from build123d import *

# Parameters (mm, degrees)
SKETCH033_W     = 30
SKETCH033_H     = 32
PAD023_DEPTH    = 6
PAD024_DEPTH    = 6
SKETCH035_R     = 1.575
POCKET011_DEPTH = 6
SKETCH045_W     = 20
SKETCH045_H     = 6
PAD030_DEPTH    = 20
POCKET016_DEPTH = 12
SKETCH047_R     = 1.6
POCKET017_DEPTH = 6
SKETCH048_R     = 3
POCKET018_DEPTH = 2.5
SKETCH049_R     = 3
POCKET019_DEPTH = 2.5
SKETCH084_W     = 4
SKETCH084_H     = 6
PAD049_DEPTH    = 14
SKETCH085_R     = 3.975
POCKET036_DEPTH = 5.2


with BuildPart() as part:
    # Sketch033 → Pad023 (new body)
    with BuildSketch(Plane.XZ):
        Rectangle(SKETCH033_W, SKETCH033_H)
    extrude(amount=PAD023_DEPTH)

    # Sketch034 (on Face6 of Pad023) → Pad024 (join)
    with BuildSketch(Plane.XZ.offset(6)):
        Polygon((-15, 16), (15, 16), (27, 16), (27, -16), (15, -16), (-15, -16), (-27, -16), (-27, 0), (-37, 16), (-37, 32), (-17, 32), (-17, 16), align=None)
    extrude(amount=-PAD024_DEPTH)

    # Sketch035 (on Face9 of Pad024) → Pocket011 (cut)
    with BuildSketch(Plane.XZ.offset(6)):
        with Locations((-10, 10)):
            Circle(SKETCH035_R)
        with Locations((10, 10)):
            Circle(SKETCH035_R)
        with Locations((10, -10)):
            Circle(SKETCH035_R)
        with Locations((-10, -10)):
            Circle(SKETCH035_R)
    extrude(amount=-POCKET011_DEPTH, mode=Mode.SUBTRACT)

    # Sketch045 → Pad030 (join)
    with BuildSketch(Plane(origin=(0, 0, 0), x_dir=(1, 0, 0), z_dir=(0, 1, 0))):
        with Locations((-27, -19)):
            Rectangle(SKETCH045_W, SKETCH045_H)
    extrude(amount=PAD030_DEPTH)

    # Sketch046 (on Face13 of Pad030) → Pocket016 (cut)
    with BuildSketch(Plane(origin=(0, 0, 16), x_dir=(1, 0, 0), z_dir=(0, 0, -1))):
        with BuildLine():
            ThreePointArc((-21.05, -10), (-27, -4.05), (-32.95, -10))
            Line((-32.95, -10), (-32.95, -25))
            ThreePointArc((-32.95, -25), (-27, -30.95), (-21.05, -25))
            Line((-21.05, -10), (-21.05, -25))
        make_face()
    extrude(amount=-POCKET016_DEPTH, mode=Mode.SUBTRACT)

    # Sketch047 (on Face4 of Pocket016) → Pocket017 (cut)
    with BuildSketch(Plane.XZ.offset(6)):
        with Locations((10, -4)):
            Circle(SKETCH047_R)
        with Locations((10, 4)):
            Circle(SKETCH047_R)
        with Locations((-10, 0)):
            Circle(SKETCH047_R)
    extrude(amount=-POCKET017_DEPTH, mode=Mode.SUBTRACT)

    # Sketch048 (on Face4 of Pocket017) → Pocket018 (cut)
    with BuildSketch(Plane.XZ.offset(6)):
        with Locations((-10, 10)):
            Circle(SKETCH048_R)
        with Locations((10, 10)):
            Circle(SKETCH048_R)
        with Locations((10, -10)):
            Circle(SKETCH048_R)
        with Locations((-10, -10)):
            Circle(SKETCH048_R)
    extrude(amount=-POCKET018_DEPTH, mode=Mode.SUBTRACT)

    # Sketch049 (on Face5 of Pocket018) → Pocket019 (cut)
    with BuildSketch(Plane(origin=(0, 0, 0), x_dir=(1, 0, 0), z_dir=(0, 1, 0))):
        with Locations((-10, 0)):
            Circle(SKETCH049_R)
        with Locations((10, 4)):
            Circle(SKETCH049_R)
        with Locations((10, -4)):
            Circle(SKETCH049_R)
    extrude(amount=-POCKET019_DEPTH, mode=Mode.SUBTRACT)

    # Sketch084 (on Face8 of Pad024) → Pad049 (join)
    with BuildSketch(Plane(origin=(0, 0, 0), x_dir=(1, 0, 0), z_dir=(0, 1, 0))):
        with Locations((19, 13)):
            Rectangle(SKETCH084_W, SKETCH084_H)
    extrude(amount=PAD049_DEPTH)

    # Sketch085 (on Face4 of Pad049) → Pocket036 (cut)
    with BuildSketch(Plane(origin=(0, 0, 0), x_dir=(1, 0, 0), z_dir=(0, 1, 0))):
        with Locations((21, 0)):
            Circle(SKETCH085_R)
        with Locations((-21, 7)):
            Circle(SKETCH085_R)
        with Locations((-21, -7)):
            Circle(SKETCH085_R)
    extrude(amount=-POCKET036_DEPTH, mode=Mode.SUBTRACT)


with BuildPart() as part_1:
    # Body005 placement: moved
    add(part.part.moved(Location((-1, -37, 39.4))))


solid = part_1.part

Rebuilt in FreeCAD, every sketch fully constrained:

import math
import FreeCAD as App
import Part
import Sketcher
from FreeCAD import Vector
Q = App.Units.Quantity


def add_polygon(sketch, points):
    """Adds a closed chain of lines whose ends are joined by coincident constraints."""
    first, n = sketch.GeometryCount, len(points)
    for a, b in zip(points, points[1:] + points[:1]):
        sketch.addGeometry(Part.LineSegment(App.Vector(*a, 0), App.Vector(*b, 0)), False)
    for i in range(n):
        sketch.addConstraint(Sketcher.Constraint("Coincident", first + i, 2, first + (i + 1) % n, 1))

doc = App.newDocument("Part")
body = doc.addObject("PartDesign::Body", "Body")

# Sketch on XZ plane
sketch1 = doc.addObject("Sketcher::SketchObject", "Sketch")
body.addObject(sketch1)
sketch1.AttachmentSupport = (doc.XZ_Plane, [""])
sketch1.MapMode = "FlatFace"
add_polygon(sketch1, [(-15, 16), (-15, -16), (15, -16), (15, 16)])  # lines 0-3
sketch1.addConstraint(Sketcher.Constraint("Vertical", 0))
sketch1.addConstraint(Sketcher.Constraint("Horizontal", 1))
sketch1.addConstraint(Sketcher.Constraint("Vertical", 2))
sketch1.addConstraint(Sketcher.Constraint("Horizontal", 3))
sketch1.addConstraint(Sketcher.Constraint("Symmetric", 0, 2, 2, 2, -1, 1))
sketch1.addConstraint(Sketcher.Constraint("DistanceX", 1, 1, 1, 2, Q("30 mm")))
sketch1.addConstraint(Sketcher.Constraint("DistanceY", 0, 2, 0, 1, Q("32 mm")))
pad1 = doc.addObject("PartDesign::Pad", "Pad")
body.addObject(pad1)
pad1.Profile = sketch1
pad1.Length = 6

# Sketch on XZ plane
sketch2 = doc.addObject("Sketcher::SketchObject", "Sketch001")
body.addObject(sketch2)
sketch2.AttachmentSupport = (doc.XZ_Plane, [""])
sketch2.MapMode = "FlatFace"
sketch2.AttachmentOffset = App.Placement(Vector(0, 0, 6), App.Rotation())
add_polygon(sketch2, [(27, 16), (-17, 16), (-17, 32), (-37, 32), (-37, 16), (-27, 0), (-27, -16), (27, -16)])  # lines 0-7
sketch2.addConstraint(Sketcher.Constraint("Horizontal", 0))
sketch2.addConstraint(Sketcher.Constraint("Vertical", 1))
sketch2.addConstraint(Sketcher.Constraint("Horizontal", 2))
sketch2.addConstraint(Sketcher.Constraint("Vertical", 3))
sketch2.addConstraint(Sketcher.Constraint("Vertical", 5))
sketch2.addConstraint(Sketcher.Constraint("Horizontal", 6))
sketch2.addConstraint(Sketcher.Constraint("Vertical", 7))
sketch2.addConstraint(Sketcher.Constraint("Symmetric", 5, 2, 7, 2, -1, 1))
sketch2.addConstraint(Sketcher.Constraint("PointOnObject", 4, 2, -1))
sketch2.addConstraint(Sketcher.Constraint("Horizontal", 0, 2, 3, 2))
sketch2.addConstraint(Sketcher.Constraint("Equal", 3, 5))
sketch2.addConstraint(Sketcher.Constraint("DistanceX", 0, 2, 0, 1, Q("44 mm")))
sketch2.addConstraint(Sketcher.Constraint("DistanceX", 2, 2, 2, 1, Q("20 mm")))
sketch2.addConstraint(Sketcher.Constraint("DistanceX", 6, 1, 6, 2, Q("54 mm")))
sketch2.addConstraint(Sketcher.Constraint("DistanceY", 1, 1, 1, 2, Q("16 mm")))
pad2 = doc.addObject("PartDesign::Pad", "Pad001")
body.addObject(pad2)
pad2.Profile = sketch2
pad2.Length = 6
pad2.Reversed = True

# Sketch on XZ plane
sketch3 = doc.addObject("Sketcher::SketchObject", "Sketch002")
body.addObject(sketch3)
sketch3.AttachmentSupport = (doc.XZ_Plane, [""])
sketch3.MapMode = "FlatFace"
sketch3.AttachmentOffset = App.Placement(Vector(0, 0, 6), App.Rotation())
sketch3.addGeometry(Part.Circle(Vector(-10, 10, 0), Vector(0, 0, 1), 1.6), False)
sketch3.addGeometry(Part.Circle(Vector(10, 10, 0), Vector(0, 0, 1), 1.6), False)
sketch3.addGeometry(Part.Circle(Vector(10, -10, 0), Vector(0, 0, 1), 1.6), False)
sketch3.addGeometry(Part.Circle(Vector(-10, -10, 0), Vector(0, 0, 1), 1.6), False)
sketch3.addConstraint(Sketcher.Constraint("Equal", 0, 1))
sketch3.addConstraint(Sketcher.Constraint("Equal", 1, 2))
sketch3.addConstraint(Sketcher.Constraint("Equal", 2, 3))
sketch3.addConstraint(Sketcher.Constraint("Symmetric", 0, 3, 2, 3, -1, 1))
sketch3.addConstraint(Sketcher.Constraint("Symmetric", 1, 3, 3, 3, -1, 1))
sketch3.addConstraint(Sketcher.Constraint("Symmetric", 0, 3, 1, 3, -2))
sketch3.addConstraint(Sketcher.Constraint("Diameter", 0, Q("3.15 mm")))
sketch3.addConstraint(Sketcher.Constraint("DistanceX", 0, 3, -1, 1, Q("10 mm")))
sketch3.addConstraint(Sketcher.Constraint("DistanceY", -1, 1, 0, 3, Q("10 mm")))
pocket1 = doc.addObject("PartDesign::Pocket", "Pocket")
body.addObject(pocket1)
pocket1.Profile = sketch3
pocket1.Length = 6

# Sketch on XZ plane
sketch4 = doc.addObject("Sketcher::SketchObject", "Sketch003")
body.addObject(sketch4)
sketch4.AttachmentSupport = (doc.XZ_Plane, [""])
sketch4.MapMode = "FlatFace"
add_polygon(sketch4, [(-37, 16), (-37, 22), (-17, 22), (-17, 16)])  # lines 0-3
sketch4.addConstraint(Sketcher.Constraint("Vertical", 0))
sketch4.addConstraint(Sketcher.Constraint("Horizontal", 1))
sketch4.addConstraint(Sketcher.Constraint("Vertical", 2))
sketch4.addConstraint(Sketcher.Constraint("Horizontal", 3))
sketch4.addConstraint(Sketcher.Constraint("DistanceX", 1, 1, 1, 2, Q("20 mm")))
sketch4.addConstraint(Sketcher.Constraint("DistanceY", 0, 1, 0, 2, Q("6 mm")))
sketch4.addConstraint(Sketcher.Constraint("DistanceX", 0, 2, -1, 1, Q("37 mm")))
sketch4.addConstraint(Sketcher.Constraint("DistanceY", -1, 1, 0, 2, Q("22 mm")))
pad3 = doc.addObject("PartDesign::Pad", "Pad002")
body.addObject(pad3)
pad3.Profile = sketch4
pad3.Length = 20
pad3.Reversed = True

# Sketch on XY plane
sketch5 = doc.addObject("Sketcher::SketchObject", "Sketch004")
body.addObject(sketch5)
sketch5.AttachmentSupport = (doc.XY_Plane, [""])
sketch5.MapMode = "FlatFace"
sketch5.AttachmentOffset = App.Placement(Vector(0, 0, 16), App.Rotation())
sketch5.addGeometry(Part.ArcOfCircle(Part.Circle(Vector(-27, 10, 0), Vector(0, 0, 1), 6), math.radians(180), math.radians(360)), False)
sketch5.addGeometry(Part.LineSegment(Vector(-33, 10, 0), Vector(-33, 25, 0)), False)
sketch5.addGeometry(Part.ArcOfCircle(Part.Circle(Vector(-27, 25, 0), Vector(0, 0, 1), 6), math.radians(0), math.radians(180)), False)
sketch5.addGeometry(Part.LineSegment(Vector(-21, 25, 0), Vector(-21, 10, 0)), False)
sketch5.addConstraint(Sketcher.Constraint("Tangent", 0, 1, 1, 1))
sketch5.addConstraint(Sketcher.Constraint("Tangent", 1, 2, 2, 2))
sketch5.addConstraint(Sketcher.Constraint("Tangent", 2, 1, 3, 1))
sketch5.addConstraint(Sketcher.Constraint("Tangent", 3, 2, 0, 2))
sketch5.addConstraint(Sketcher.Constraint("Vertical", 1))
sketch5.addConstraint(Sketcher.Constraint("Vertical", 3))
sketch5.addConstraint(Sketcher.Constraint("DistanceY", 1, 1, 1, 2, Q("15 mm")))
sketch5.addConstraint(Sketcher.Constraint("Radius", 0, Q("5.95 mm")))
sketch5.addConstraint(Sketcher.Constraint("DistanceX", 0, 3, -1, 1, Q("27 mm")))
sketch5.addConstraint(Sketcher.Constraint("DistanceY", -1, 1, 0, 3, Q("10 mm")))
pocket2 = doc.addObject("PartDesign::Pocket", "Pocket001")
body.addObject(pocket2)
pocket2.Profile = sketch5
pocket2.Length = 12
pocket2.Reversed = True

# Sketch on XZ plane
sketch6 = doc.addObject("Sketcher::SketchObject", "Sketch005")
body.addObject(sketch6)
sketch6.AttachmentSupport = (doc.XZ_Plane, [""])
sketch6.MapMode = "FlatFace"
sketch6.AttachmentOffset = App.Placement(Vector(0, 0, 6), App.Rotation())
sketch6.addGeometry(Part.Circle(Vector(10, -4, 0), Vector(0, 0, 1), 1.6), False)
sketch6.addGeometry(Part.Circle(Vector(10, 4, 0), Vector(0, 0, 1), 1.6), False)
sketch6.addGeometry(Part.Circle(Vector(-10, 0, 0), Vector(0, 0, 1), 1.6), False)
sketch6.addConstraint(Sketcher.Constraint("Equal", 0, 1))
sketch6.addConstraint(Sketcher.Constraint("Equal", 1, 2))
sketch6.addConstraint(Sketcher.Constraint("Symmetric", 0, 3, 1, 3, -1))
sketch6.addConstraint(Sketcher.Constraint("PointOnObject", 2, 3, -1))
sketch6.addConstraint(Sketcher.Constraint("Diameter", 0, Q("3.2 mm")))
sketch6.addConstraint(Sketcher.Constraint("DistanceX", -1, 1, 0, 3, Q("10 mm")))
sketch6.addConstraint(Sketcher.Constraint("DistanceY", 0, 3, -1, 1, Q("4 mm")))
sketch6.addConstraint(Sketcher.Constraint("DistanceX", 2, 3, -1, 1, Q("10 mm")))
pocket3 = doc.addObject("PartDesign::Pocket", "Pocket002")
body.addObject(pocket3)
pocket3.Profile = sketch6
pocket3.Length = 6

# Sketch on XZ plane
sketch7 = doc.addObject("Sketcher::SketchObject", "Sketch006")
body.addObject(sketch7)
sketch7.AttachmentSupport = (doc.XZ_Plane, [""])
sketch7.MapMode = "FlatFace"
sketch7.AttachmentOffset = App.Placement(Vector(0, 0, 6), App.Rotation())
sketch7.addGeometry(Part.Circle(Vector(-10, 10, 0), Vector(0, 0, 1), 3), False)
sketch7.addGeometry(Part.Circle(Vector(10, 10, 0), Vector(0, 0, 1), 3), False)
sketch7.addGeometry(Part.Circle(Vector(10, -10, 0), Vector(0, 0, 1), 3), False)
sketch7.addGeometry(Part.Circle(Vector(-10, -10, 0), Vector(0, 0, 1), 3), False)
sketch7.addConstraint(Sketcher.Constraint("Equal", 0, 1))
sketch7.addConstraint(Sketcher.Constraint("Equal", 1, 2))
sketch7.addConstraint(Sketcher.Constraint("Equal", 2, 3))
sketch7.addConstraint(Sketcher.Constraint("Symmetric", 0, 3, 2, 3, -1, 1))
sketch7.addConstraint(Sketcher.Constraint("Symmetric", 1, 3, 3, 3, -1, 1))
sketch7.addConstraint(Sketcher.Constraint("Symmetric", 0, 3, 1, 3, -2))
sketch7.addConstraint(Sketcher.Constraint("Diameter", 0, Q("6 mm")))
sketch7.addConstraint(Sketcher.Constraint("DistanceX", 0, 3, -1, 1, Q("10 mm")))
sketch7.addConstraint(Sketcher.Constraint("DistanceY", -1, 1, 0, 3, Q("10 mm")))
pocket4 = doc.addObject("PartDesign::Pocket", "Pocket003")
body.addObject(pocket4)
pocket4.Profile = sketch7
pocket4.Length = 2.5

# Sketch on XZ plane
sketch8 = doc.addObject("Sketcher::SketchObject", "Sketch007")
body.addObject(sketch8)
sketch8.AttachmentSupport = (doc.XZ_Plane, [""])
sketch8.MapMode = "FlatFace"
sketch8.addGeometry(Part.Circle(Vector(-10, 0, 0), Vector(0, 0, 1), 3), False)
sketch8.addGeometry(Part.Circle(Vector(10, -4, 0), Vector(0, 0, 1), 3), False)
sketch8.addGeometry(Part.Circle(Vector(10, 4, 0), Vector(0, 0, 1), 3), False)
sketch8.addConstraint(Sketcher.Constraint("Equal", 0, 1))
sketch8.addConstraint(Sketcher.Constraint("Equal", 1, 2))
sketch8.addConstraint(Sketcher.Constraint("Symmetric", 1, 3, 2, 3, -1))
sketch8.addConstraint(Sketcher.Constraint("PointOnObject", 0, 3, -1))
sketch8.addConstraint(Sketcher.Constraint("Diameter", 0, Q("6 mm")))
sketch8.addConstraint(Sketcher.Constraint("DistanceX", 0, 3, -1, 1, Q("10 mm")))
sketch8.addConstraint(Sketcher.Constraint("DistanceX", -1, 1, 1, 3, Q("10 mm")))
sketch8.addConstraint(Sketcher.Constraint("DistanceY", 1, 3, -1, 1, Q("4 mm")))
pocket5 = doc.addObject("PartDesign::Pocket", "Pocket004")
body.addObject(pocket5)
pocket5.Profile = sketch8
pocket5.Length = 2.5
pocket5.Reversed = True

# Sketch on XZ plane
sketch9 = doc.addObject("Sketcher::SketchObject", "Sketch008")
body.addObject(sketch9)
sketch9.AttachmentSupport = (doc.XZ_Plane, [""])
sketch9.MapMode = "FlatFace"
add_polygon(sketch9, [(17, -16), (17, -10), (21, -10), (21, -16)])  # lines 0-3
sketch9.addConstraint(Sketcher.Constraint("Vertical", 0))
sketch9.addConstraint(Sketcher.Constraint("Horizontal", 1))
sketch9.addConstraint(Sketcher.Constraint("Vertical", 2))
sketch9.addConstraint(Sketcher.Constraint("Horizontal", 3))
sketch9.addConstraint(Sketcher.Constraint("DistanceX", 1, 1, 1, 2, Q("4 mm")))
sketch9.addConstraint(Sketcher.Constraint("DistanceY", 0, 1, 0, 2, Q("6 mm")))
sketch9.addConstraint(Sketcher.Constraint("DistanceX", -1, 1, 0, 2, Q("17 mm")))
sketch9.addConstraint(Sketcher.Constraint("DistanceY", 0, 2, -1, 1, Q("10 mm")))
pad4 = doc.addObject("PartDesign::Pad", "Pad003")
body.addObject(pad4)
pad4.Profile = sketch9
pad4.Length = 14
pad4.Reversed = True

# Sketch on XZ plane
sketch10 = doc.addObject("Sketcher::SketchObject", "Sketch009")
body.addObject(sketch10)
sketch10.AttachmentSupport = (doc.XZ_Plane, [""])
sketch10.MapMode = "FlatFace"
sketch10.addGeometry(Part.Circle(Vector(21, 0, 0), Vector(0, 0, 1), 4), False)
sketch10.addGeometry(Part.Circle(Vector(-21, -7, 0), Vector(0, 0, 1), 4), False)
sketch10.addGeometry(Part.Circle(Vector(-21, 7, 0), Vector(0, 0, 1), 4), False)
sketch10.addConstraint(Sketcher.Constraint("Equal", 0, 1))
sketch10.addConstraint(Sketcher.Constraint("Equal", 1, 2))
sketch10.addConstraint(Sketcher.Constraint("Symmetric", 1, 3, 2, 3, -1))
sketch10.addConstraint(Sketcher.Constraint("PointOnObject", 0, 3, -1))
sketch10.addConstraint(Sketcher.Constraint("Diameter", 0, Q("7.95 mm")))
sketch10.addConstraint(Sketcher.Constraint("DistanceX", -1, 1, 0, 3, Q("21 mm")))
sketch10.addConstraint(Sketcher.Constraint("DistanceX", 1, 3, -1, 1, Q("21 mm")))
sketch10.addConstraint(Sketcher.Constraint("DistanceY", 1, 3, -1, 1, Q("7 mm")))
pocket6 = doc.addObject("PartDesign::Pocket", "Pocket005")
body.addObject(pocket6)
pocket6.Profile = sketch10
pocket6.Length = 5.2
pocket6.Reversed = True
body2 = doc.addObject("PartDesign::Body", "Body001")
doc.recompute()

body.Placement = App.Placement(Vector(-1, -37, 39.4), App.Rotation(Vector(0, 0, 1), 0))
boolean = doc.addObject("PartDesign::Boolean", "Boolean")
body2.addObject(boolean)
boolean.Type = "Fuse"
boolean.addObjects([body])

doc.recompute()
